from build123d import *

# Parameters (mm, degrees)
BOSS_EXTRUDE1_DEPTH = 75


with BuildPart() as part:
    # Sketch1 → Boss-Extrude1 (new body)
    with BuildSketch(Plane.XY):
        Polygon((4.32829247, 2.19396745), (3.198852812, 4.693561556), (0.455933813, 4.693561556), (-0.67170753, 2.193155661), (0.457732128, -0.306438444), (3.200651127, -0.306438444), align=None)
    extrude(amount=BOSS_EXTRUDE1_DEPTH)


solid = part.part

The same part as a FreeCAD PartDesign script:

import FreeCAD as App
import Part
import Sketcher
from FreeCAD import Vector


def add_polygon(sketch, points):
    """Adds a closed chain of lines whose ends are joined by coincident constraints."""
    first, n = sketch.GeometryCount, len(points)
    for a, b in zip(points, points[1:] + points[:1]):
        sketch.addGeometry(Part.LineSegment(App.Vector(*a, 0), App.Vector(*b, 0)), False)
    for i in range(n):
        sketch.addConstraint(Sketcher.Constraint("Coincident", first + i, 2, first + (i + 1) % n, 1))

doc = App.newDocument("Part")
body = doc.addObject("PartDesign::Body", "Body")

# Sketch on XY plane
sketch1 = body.newObject("Sketcher::SketchObject", "Sketch")
sketch1.AttachmentSupport = (doc.getObject("XY_Plane"), [""])
sketch1.MapMode = "FlatFace"
add_polygon(sketch1, [(4.3, 2.2), (3.2, 4.7), (0.5, 4.7), (-0.7, 2.2), (0.5, -0.3), (3.2, -0.3)])  # lines 0-5
sketch1.addConstraint([
    Sketcher.Constraint("Horizontal", 1),
    Sketcher.Constraint("Horizontal", 4),
    Sketcher.Constraint("Parallel", 0, 3),
    Sketcher.Constraint("Parallel", 2, 5),
    Sketcher.Constraint("Equal", 1, 4),
    Sketcher.Constraint("Equal", 0, 2),
    Sketcher.Constraint("DistanceY", 3, 2, 1, 2, 5.0),
    Sketcher.Constraint("DistanceX", 2, 2, 5, 2, 5.0),
    Sketcher.Constraint("DistanceX", 1, 2, 1, 1, 2.742919),
    Sketcher.Constraint("DistanceX", 1, 2, 3, 2, 0.001798),
    Sketcher.Constraint("DistanceY", -1, 1, 0, 2, 4.693562),
    Sketcher.Constraint("DistanceX", -1, 1, 4, 2, 3.200651),
])
pad1 = body.newObject("PartDesign::Pad", "Pad")
pad1.Profile = sketch1
pad1.Length = 75

doc.recompute()
